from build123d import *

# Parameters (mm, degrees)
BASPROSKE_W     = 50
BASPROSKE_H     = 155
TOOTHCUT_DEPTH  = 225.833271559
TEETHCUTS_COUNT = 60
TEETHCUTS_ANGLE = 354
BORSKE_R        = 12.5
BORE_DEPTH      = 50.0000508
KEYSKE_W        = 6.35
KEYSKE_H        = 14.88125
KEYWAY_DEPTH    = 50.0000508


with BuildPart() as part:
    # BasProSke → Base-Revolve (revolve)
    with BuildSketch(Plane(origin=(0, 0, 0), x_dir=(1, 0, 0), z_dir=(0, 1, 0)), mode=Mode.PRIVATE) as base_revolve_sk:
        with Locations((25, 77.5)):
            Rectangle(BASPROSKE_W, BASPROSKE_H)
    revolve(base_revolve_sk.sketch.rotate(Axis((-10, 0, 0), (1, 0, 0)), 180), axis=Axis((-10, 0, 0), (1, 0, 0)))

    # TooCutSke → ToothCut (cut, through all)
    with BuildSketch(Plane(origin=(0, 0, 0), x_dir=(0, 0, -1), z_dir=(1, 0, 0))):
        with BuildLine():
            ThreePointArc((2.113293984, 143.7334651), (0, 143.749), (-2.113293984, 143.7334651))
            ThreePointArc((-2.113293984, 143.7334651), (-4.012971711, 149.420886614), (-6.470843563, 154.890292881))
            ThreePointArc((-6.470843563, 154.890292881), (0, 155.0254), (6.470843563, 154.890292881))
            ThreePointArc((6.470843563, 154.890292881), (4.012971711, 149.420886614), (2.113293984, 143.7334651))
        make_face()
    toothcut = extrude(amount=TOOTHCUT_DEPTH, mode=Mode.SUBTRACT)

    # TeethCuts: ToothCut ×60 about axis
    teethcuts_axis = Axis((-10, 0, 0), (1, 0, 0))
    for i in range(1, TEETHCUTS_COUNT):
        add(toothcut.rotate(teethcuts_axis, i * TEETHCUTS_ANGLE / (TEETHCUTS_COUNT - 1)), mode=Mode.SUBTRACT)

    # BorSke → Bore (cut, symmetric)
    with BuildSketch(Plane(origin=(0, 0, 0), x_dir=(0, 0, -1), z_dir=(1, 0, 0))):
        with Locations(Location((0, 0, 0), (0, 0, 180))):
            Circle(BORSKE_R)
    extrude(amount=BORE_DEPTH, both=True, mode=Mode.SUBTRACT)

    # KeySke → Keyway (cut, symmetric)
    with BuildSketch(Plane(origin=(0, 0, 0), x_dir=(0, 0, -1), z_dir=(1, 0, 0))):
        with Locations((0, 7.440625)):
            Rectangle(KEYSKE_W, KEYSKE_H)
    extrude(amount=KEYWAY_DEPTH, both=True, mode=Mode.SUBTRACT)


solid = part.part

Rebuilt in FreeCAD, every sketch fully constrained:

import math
import FreeCAD as App
import Part
import Sketcher

V = App.Vector
Q = App.Units.Quantity

doc = App.newDocument("Part")
params = doc.addObject("Spreadsheet::Sheet", "Params")
for row, (alias, value) in enumerate([
    ("sketch1_width", "50 mm"),
    ("sketch1_height", "155 mm"),
    ("revolution_angle", "360 deg"),
    ("sketch2_radius", "60 mm"),
    ("sketch3_diameter", "25 mm"),
    ("pocket2_length", "100.000102 mm"),
    ("sketch4_height", "6.35 mm"),
    ("pocket3_length", "100.000102 mm"),
], start=1):
    params.set(f"A{row}", alias)
    params.set(f"B{row}", "=" + value)
    params.setAlias(f"B{row}", alias)

body = doc.addObject("PartDesign::Body", "Body")

# Sketch on XZ plane
sketch1 = doc.addObject("Sketcher::SketchObject", "Sketch")
body.addObject(sketch1)
sketch1.AttachmentSupport = (doc.XZ_Plane, [""])
sketch1.MapMode = "FlatFace"
sketch1.addGeometry(Part.LineSegment(V(0, -155, 0), V(0, 0, 0)), False)
sketch1.addGeometry(Part.LineSegment(V(0, 0, 0), V(50, 0, 0)), False)
sketch1.addGeometry(Part.LineSegment(V(50, 0, 0), V(50, -155, 0)), False)
sketch1.addGeometry(Part.LineSegment(V(50, -155, 0), V(0, -155, 0)), False)
sketch1.addConstraint(Sketcher.Constraint("Coincident", 0, 2, 1, 1))
sketch1.addConstraint(Sketcher.Constraint("Coincident", 1, 2, 2, 1))
sketch1.addConstraint(Sketcher.Constraint("Coincident", 2, 2, 3, 1))
sketch1.addConstraint(Sketcher.Constraint("Coincident", 3, 2, 0, 1))
sketch1.addConstraint(Sketcher.Constraint("Vertical", 0))
sketch1.addConstraint(Sketcher.Constraint("Horizontal", 1))
sketch1.addConstraint(Sketcher.Constraint("Vertical", 2))
sketch1.addConstraint(Sketcher.Constraint("Horizontal", 3))
sketch1.addConstraint(Sketcher.Constraint("Coincident", 0, 2, -1, 1))
sketch1.addConstraint(Sketcher.Constraint("DistanceX", 1, 1, 1, 2, Q("50 mm")))
sketch1.addConstraint(Sketcher.Constraint("DistanceY", 0, 1, 0, 2, Q("155 mm")))
sketch1.setExpression("Constraints[9]", "Params.sketch1_width")
sketch1.setExpression("Constraints[10]", "Params.sketch1_height")
revolution = doc.addObject("PartDesign::Revolution", "Revolution")
body.addObject(revolution)
revolution.Profile = sketch1
revolution.ReferenceAxis = (sketch1, ["H_Axis"])
revolution.setExpression("Angle", "Params.revolution_angle")

# Sketch on YZ plane
sketch2 = doc.addObject("Sketcher::SketchObject", "Sketch001")
body.addObject(sketch2)
sketch2.AttachmentSupport = (doc.YZ_Plane, [""])
sketch2.MapMode = "FlatFace"
sketch2.addGeometry(Part.ArcOfCircle(Part.Circle(V(-0.000004, 0, 0), V(0, 0, 1), 143.749004), math.radians(-0.842351), math.radians(0.842351)), False)
sketch2.addGeometry(Part.ArcOfCircle(Part.Circle(V(127.592403, -59.901408, 0), V(0, 0, 1), 60), math.radians(62.937329), math.radians(74.394177)), False)
sketch2.addGeometry(Part.ArcOfCircle(Part.Circle(V(0, 0, 0), V(0, 0, 1), 155.0254), math.radians(-2.392252), math.radians(2.392252)), False)
sketch2.addGeometry(Part.ArcOfCircle(Part.Circle(V(127.592403, 59.901408, 0), V(0, 0, 1), 60), math.radians(-74.394177), math.radians(-62.937329)), False)
sketch2.addConstraint(Sketcher.Constraint("Coincident", 0, 1, 1, 2))
sketch2.addConstraint(Sketcher.Constraint("Coincident", 1, 1, 2, 1))
sketch2.addConstraint(Sketcher.Constraint("Coincident", 2, 2, 3, 2))
sketch2.addConstraint(Sketcher.Constraint("Coincident", 3, 1, 0, 2))
sketch2.addConstraint(Sketcher.Constraint("Coincident", 0, 3, -1, 1))
sketch2.addConstraint(Sketcher.Constraint("Coincident", 2, 3, -1, 1))
sketch2.addConstraint(Sketcher.Constraint("Equal", 1, 3))
sketch2.addConstraint(Sketcher.Constraint("Symmetric", 1, 3, 3, 3, -1))
sketch2.addConstraint(Sketcher.Constraint("Radius", 1, Q("60 mm")))
sketch2.addConstraint(Sketcher.Constraint("Radius", 2, Q("155.0254 mm")))
sketch2.addConstraint(Sketcher.Constraint("Radius", 0, Q("143.749004 mm")))
sketch2.addConstraint(Sketcher.Constraint("DistanceY", 0, 1, 3, 3, Q("62.014702 mm")))
sketch2.addConstraint(Sketcher.Constraint("DistanceX", 1, 3, 1, 1, Q("27.29789 mm")))
sketch2.setExpression("Constraints[8]", "Params.sketch2_radius")
pocket1 = doc.addObject("PartDesign::Pocket", "Pocket")
body.addObject(pocket1)
pocket1.Profile = sketch2
pocket1.Type = "ThroughAll"
pocket1.Reversed = True
doc.recompute()

polarpattern = doc.addObject("PartDesign::PolarPattern", "PolarPattern")
body.addObject(polarpattern)
polarpattern.Originals = [pocket1]
polarpattern.Axis = (doc.X_Axis, [""])
polarpattern.Angle = 360
polarpattern.Occurrences = 60
body.Tip = polarpattern

# Sketch on YZ plane
sketch3 = doc.addObject("Sketcher::SketchObject", "Sketch002")
body.addObject(sketch3)
sketch3.AttachmentSupport = (doc.YZ_Plane, [""])
sketch3.MapMode = "FlatFace"
sketch3.addGeometry(Part.Circle(V(0, 0, 0), V(0, 0, 1), 12.5), False)
sketch3.addConstraint(Sketcher.Constraint("Coincident", 0, 3, -1, 1))
sketch3.addConstraint(Sketcher.Constraint("Diameter", 0, Q("25 mm")))
sketch3.setExpression("Constraints[1]", "Params.sketch3_diameter")
pocket2 = doc.addObject("PartDesign::Pocket", "Pocket001")
body.addObject(pocket2)
pocket2.Profile = sketch3
pocket2.setExpression("Length", "Params.pocket2_length")
pocket2.Midplane = True

# Sketch on YZ plane
sketch4 = doc.addObject("Sketcher::SketchObject", "Sketch003")
body.addObject(sketch4)
sketch4.AttachmentSupport = (doc.YZ_Plane, [""])
sketch4.MapMode = "FlatFace"
sketch4.addGeometry(Part.LineSegment(V(14.88125, 3.175, 0), V(0, 3.175, 0)), False)
sketch4.addGeometry(Part.LineSegment(V(0, 3.175, 0), V(0, -3.175, 0)), False)
sketch4.addGeometry(Part.LineSegment(V(0, -3.175, 0), V(14.88125, -3.175, 0)), False)
sketch4.addGeometry(Part.LineSegment(V(14.88125, -3.175, 0), V(14.88125, 3.175, 0)), False)
sketch4.addConstraint(Sketcher.Constraint("Coincident", 0, 2, 1, 1))
sketch4.addConstraint(Sketcher.Constraint("Coincident", 1, 2, 2, 1))
sketch4.addConstraint(Sketcher.Constraint("Coincident", 2, 2, 3, 1))
sketch4.addConstraint(Sketcher.Constraint("Coincident", 3, 2, 0, 1))
sketch4.addConstraint(Sketcher.Constraint("Horizontal", 0))
sketch4.addConstraint(Sketcher.Constraint("Vertical", 1))
sketch4.addConstraint(Sketcher.Constraint("Horizontal", 2))
sketch4.addConstraint(Sketcher.Constraint("Vertical", 3))
sketch4.addConstraint(Sketcher.Constraint("Symmetric", 0, 2, 1, 2, -1, 1))
sketch4.addConstraint(Sketcher.Constraint("DistanceY", 1, 2, 1, 1, Q("6.35 mm")))
sketch4.addConstraint(Sketcher.Constraint("DistanceX", 0, 2, 0, 1, Q("14.88125 mm")))
sketch4.setExpression("Constraints[9]", "Params.sketch4_height")
pocket3 = doc.addObject("PartDesign::Pocket", "Pocket002")
body.addObject(pocket3)
pocket3.Profile = sketch4
pocket3.setExpression("Length", "Params.pocket3_length")
pocket3.Midplane = True

doc.recompute()
